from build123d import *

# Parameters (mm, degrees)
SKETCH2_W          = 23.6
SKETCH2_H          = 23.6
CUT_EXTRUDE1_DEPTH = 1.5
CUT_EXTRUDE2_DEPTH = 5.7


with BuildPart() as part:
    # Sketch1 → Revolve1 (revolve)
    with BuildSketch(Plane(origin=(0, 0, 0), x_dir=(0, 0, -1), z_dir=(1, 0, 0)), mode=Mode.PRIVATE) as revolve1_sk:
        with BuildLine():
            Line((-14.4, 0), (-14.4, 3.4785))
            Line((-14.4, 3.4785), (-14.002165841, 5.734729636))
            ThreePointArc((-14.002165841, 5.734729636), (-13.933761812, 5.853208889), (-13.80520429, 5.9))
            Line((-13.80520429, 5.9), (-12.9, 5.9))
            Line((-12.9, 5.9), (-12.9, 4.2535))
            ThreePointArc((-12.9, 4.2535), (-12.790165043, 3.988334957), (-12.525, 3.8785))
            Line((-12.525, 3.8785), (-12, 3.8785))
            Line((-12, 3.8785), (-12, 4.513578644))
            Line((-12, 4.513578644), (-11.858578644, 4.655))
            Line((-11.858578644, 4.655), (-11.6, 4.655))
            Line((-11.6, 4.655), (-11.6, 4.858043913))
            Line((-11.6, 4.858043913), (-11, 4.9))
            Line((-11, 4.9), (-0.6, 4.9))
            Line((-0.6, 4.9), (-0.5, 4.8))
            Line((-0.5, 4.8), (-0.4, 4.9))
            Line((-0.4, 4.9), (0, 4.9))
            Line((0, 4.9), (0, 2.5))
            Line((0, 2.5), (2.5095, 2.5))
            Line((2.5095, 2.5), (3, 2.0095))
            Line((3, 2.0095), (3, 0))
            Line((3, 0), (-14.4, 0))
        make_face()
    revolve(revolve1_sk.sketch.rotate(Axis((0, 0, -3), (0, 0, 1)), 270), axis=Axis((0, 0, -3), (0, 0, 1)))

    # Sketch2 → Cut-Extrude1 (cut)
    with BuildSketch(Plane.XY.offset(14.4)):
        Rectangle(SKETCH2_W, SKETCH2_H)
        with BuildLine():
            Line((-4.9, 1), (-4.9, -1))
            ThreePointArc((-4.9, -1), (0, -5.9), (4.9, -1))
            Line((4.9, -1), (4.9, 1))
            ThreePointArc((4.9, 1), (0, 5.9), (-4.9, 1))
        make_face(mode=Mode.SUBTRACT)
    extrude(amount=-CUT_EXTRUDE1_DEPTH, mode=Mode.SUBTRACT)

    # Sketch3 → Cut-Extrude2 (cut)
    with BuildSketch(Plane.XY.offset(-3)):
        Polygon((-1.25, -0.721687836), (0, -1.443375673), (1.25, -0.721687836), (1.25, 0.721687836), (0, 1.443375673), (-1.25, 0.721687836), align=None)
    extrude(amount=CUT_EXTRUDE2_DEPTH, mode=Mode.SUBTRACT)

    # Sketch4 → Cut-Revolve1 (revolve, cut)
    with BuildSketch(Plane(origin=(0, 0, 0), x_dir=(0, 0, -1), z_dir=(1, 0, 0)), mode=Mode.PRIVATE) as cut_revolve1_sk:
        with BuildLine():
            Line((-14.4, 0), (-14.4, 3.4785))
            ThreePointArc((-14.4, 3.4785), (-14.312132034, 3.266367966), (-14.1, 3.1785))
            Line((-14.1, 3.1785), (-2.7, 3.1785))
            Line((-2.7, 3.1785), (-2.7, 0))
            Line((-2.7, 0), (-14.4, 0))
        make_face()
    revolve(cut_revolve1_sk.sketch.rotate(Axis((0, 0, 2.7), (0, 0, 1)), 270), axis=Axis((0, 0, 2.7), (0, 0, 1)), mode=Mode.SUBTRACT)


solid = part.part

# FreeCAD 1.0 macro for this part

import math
import FreeCAD as App
import Part
import Sketcher

V = App.Vector
Q = App.Units.Quantity

doc = App.newDocument("Part")
body = doc.addObject("PartDesign::Body", "Body")

# Sketch on YZ plane
sketch1 = body.newObject("Sketcher::SketchObject", "Sketch")
sketch1.AttachmentSupport = (doc.getObject("YZ_Plane"), [""])
sketch1.MapMode = "FlatFace"
sketch1.addGeometry(Part.LineSegment(V(3.4785, 14.4, 0), V(0, 14.4, 0)), False)
sketch1.addGeometry(Part.LineSegment(V(0, 14.4, 0), V(0, -3, 0)), False)
sketch1.addGeometry(Part.LineSegment(V(0, -3, 0), V(2.0095, -3, 0)), False)
sketch1.addGeometry(Part.LineSegment(V(2.0095, -3, 0), V(2.5, -2.5095, 0)), False)
sketch1.addGeometry(Part.LineSegment(V(2.5, -2.5095, 0), V(2.5, 0, 0)), False)
sketch1.addGeometry(Part.LineSegment(V(2.5, 0, 0), V(4.9, 0, 0)), False)
sketch1.addGeometry(Part.LineSegment(V(4.9, 0, 0), V(4.9, 0.4, 0)), False)
sketch1.addGeometry(Part.LineSegment(V(4.9, 0.4, 0), V(4.8, 0.5, 0)), False)
sketch1.addGeometry(Part.LineSegment(V(4.8, 0.5, 0), V(4.9, 0.6, 0)), False)
sketch1.addGeometry(Part.LineSegment(V(4.9, 0.6, 0), V(4.9, 11, 0)), False)
sketch1.addGeometry(Part.LineSegment(V(4.9, 11, 0), V(4.858044, 11.6, 0)), False)
sketch1.addGeometry(Part.LineSegment(V(4.858044, 11.6, 0), V(4.655, 11.6, 0)), False)
sketch1.addGeometry(Part.LineSegment(V(4.655, 11.6, 0), V(4.655, 11.858579, 0)), False)
sketch1.addGeometry(Part.LineSegment(V(4.655, 11.858579, 0), V(4.513579, 12, 0)), False)
sketch1.addGeometry(Part.LineSegment(V(4.513579, 12, 0), V(3.8785, 12, 0)), False)
sketch1.addGeometry(Part.LineSegment(V(3.8785, 12, 0), V(3.8785, 12.525, 0)), False)
sketch1.addGeometry(Part.ArcOfCircle(Part.Circle(V(4.2535, 12.525, 0), V(0, 0, 1), 0.375), math.radians(90), math.radians(180)), False)
sketch1.addGeometry(Part.LineSegment(V(4.2535, 12.9, 0), V(5.9, 12.9, 0)), False)
sketch1.addGeometry(Part.LineSegment(V(5.9, 12.9, 0), V(5.9, 13.805204, 0)), False)
sketch1.addGeometry(Part.ArcOfCircle(Part.Circle(V(5.7, 13.805204, 0), V(0, 0, 1), 0.2), math.radians(0), math.radians(80)), False)
sketch1.addGeometry(Part.LineSegment(V(5.73473, 14.002166, 0), V(3.4785, 14.4, 0)), False)
sketch1.addConstraint(Sketcher.Constraint("Coincident", 0, 2, 1, 1))
sketch1.addConstraint(Sketcher.Constraint("Coincident", 1, 2, 2, 1))
sketch1.addConstraint(Sketcher.Constraint("Coincident", 2, 2, 3, 1))
sketch1.addConstraint(Sketcher.Constraint("Coincident", 3, 2, 4, 1))
sketch1.addConstraint(Sketcher.Constraint("Coincident", 4, 2, 5, 1))
sketch1.addConstraint(Sketcher.Constraint("Coincident", 5, 2, 6, 1))
sketch1.addConstraint(Sketcher.Constraint("Coincident", 6, 2, 7, 1))
sketch1.addConstraint(Sketcher.Constraint("Coincident", 7, 2, 8, 1))
sketch1.addConstraint(Sketcher.Constraint("Coincident", 8, 2, 9, 1))
sketch1.addConstraint(Sketcher.Constraint("Coincident", 9, 2, 10, 1))
sketch1.addConstraint(Sketcher.Constraint("Coincident", 10, 2, 11, 1))
sketch1.addConstraint(Sketcher.Constraint("Coincident", 11, 2, 12, 1))
sketch1.addConstraint(Sketcher.Constraint("Coincident", 12, 2, 13, 1))
sketch1.addConstraint(Sketcher.Constraint("Coincident", 13, 2, 14, 1))
sketch1.addConstraint(Sketcher.Constraint("Coincident", 14, 2, 15, 1))
sketch1.addConstraint(Sketcher.Constraint("Tangent", 15, 2, 16, 2))
sketch1.addConstraint(Sketcher.Constraint("Tangent", 16, 1, 17, 1))
sketch1.addConstraint(Sketcher.Constraint("Coincident", 17, 2, 18, 1))
sketch1.addConstraint(Sketcher.Constraint("Tangent", 18, 2, 19, 1))
sketch1.addConstraint(Sketcher.Constraint("Tangent", 19, 2, 20, 1))
sketch1.addConstraint(Sketcher.Constraint("Coincident", 20, 2, 0, 1))
sketch1.addConstraint(Sketcher.Constraint("Horizontal", 0))
sketch1.addConstraint(Sketcher.Constraint("Vertical", 1))
sketch1.addConstraint(Sketcher.Constraint("Horizontal", 2))
sketch1.addConstraint(Sketcher.Constraint("Vertical", 4))
sketch1.addConstraint(Sketcher.Constraint("Horizontal", 5))
sketch1.addConstraint(Sketcher.Constraint("Vertical", 6))
sketch1.addConstraint(Sketcher.Constraint("Vertical", 9))
sketch1.addConstraint(Sketcher.Constraint("Horizontal", 11))
sketch1.addConstraint(Sketcher.Constraint("Vertical", 12))
sketch1.addConstraint(Sketcher.Constraint("Horizontal", 14))
sketch1.addConstraint(Sketcher.Constraint("Vertical", 15))
sketch1.addConstraint(Sketcher.Constraint("Horizontal", 17))
sketch1.addConstraint(Sketcher.Constraint("Vertical", 18))
sketch1.addConstraint(Sketcher.Constraint("PointOnObject", 0, 2, -2))
sketch1.addConstraint(Sketcher.Constraint("PointOnObject", 4, 2, -1))
sketch1.addConstraint(Sketcher.Constraint("Perpendicular", 3, 7))
sketch1.addConstraint(Sketcher.Constraint("Perpendicular", 7, 8))
sketch1.addConstraint(Sketcher.Constraint("Perpendicular", 8, 13))
sketch1.addConstraint(Sketcher.Constraint("Vertical", 6, 2, 8, 2))
sketch1.addConstraint(Sketcher.Constraint("Equal", 7, 8))
sketch1.addConstraint(Sketcher.Constraint("Radius", 19, 0.2))
sketch1.addConstraint(Sketcher.Constraint("Angle", 10, Q("94 deg")))
sketch1.addConstraint(Sketcher.Constraint("Angle", 20, Q("170 deg")))
sketch1.addConstraint(Sketcher.Constraint("DistanceX", 5, 1, 5, 2, 2.4))
sketch1.addConstraint(Sketcher.Constraint("DistanceY", 1, 2, 1, 1, 17.4))
sketch1.addConstraint(Sketcher.Constraint("DistanceY", 6, 1, 6, 2, 0.4))
sketch1.addConstraint(Sketcher.Constraint("DistanceY", 9, 1, 9, 2, 10.4))
sketch1.addConstraint(Sketcher.Constraint("DistanceY", 1, 2, -1, 1, 3.0))
sketch1.addConstraint(Sketcher.Constraint("DistanceY", -1, 1, 9, 2, 11.0))
sketch1.addConstraint(Sketcher.Constraint("DistanceY", -1, 1, 13, 2, 12.0))
sketch1.addConstraint(Sketcher.Constraint("Radius", 16, 0.375))
sketch1.addConstraint(Sketcher.Constraint("DistanceY", 8, 2, 10, 2, 11.0))
sketch1.addConstraint(Sketcher.Constraint("Distance", 13, 0.2))
sketch1.addConstraint(Sketcher.Constraint("DistanceX", -1, 1, 19, 3, 5.7))
sketch1.addConstraint(Sketcher.Constraint("DistanceX", -1, 1, 3, 2, 2.5))
sketch1.addConstraint(Sketcher.Constraint("DistanceY", -1, 1, 16, 1, 12.9))
sketch1.addConstraint(Sketcher.Constraint("DistanceX", 20, 2, 15, 2, 0.4))
sketch1.addConstraint(Sketcher.Constraint("DistanceX", 0, 2, 0, 1, 3.4785))
sketch1.addConstraint(Sketcher.Constraint("DistanceX", 2, 1, 2, 2, 2.0095))
sketch1.addConstraint(Sketcher.Constraint("DistanceX", -1, 1, 11, 2, 4.655))
revolution = body.newObject("PartDesign::Revolution", "Revolution")
revolution.Profile = sketch1
revolution.ReferenceAxis = (sketch1, ["V_Axis"])
revolution.Angle = 360

# Sketch on XY plane
sketch2 = body.newObject("Sketcher::SketchObject", "Sketch001")
sketch2.AttachmentSupport = (doc.getObject("XY_Plane"), [""])
sketch2.MapMode = "FlatFace"
sketch2.AttachmentOffset = App.Placement(V(0, 0, 14.4), App.Rotation())
sketch2.addGeometry(Part.LineSegment(V(-11.8, 11.8, 0), V(-11.8, -11.8, 0)), False)
sketch2.addGeometry(Part.LineSegment(V(-11.8, -11.8, 0), V(11.8, -11.8, 0)), False)
sketch2.addGeometry(Part.LineSegment(V(11.8, -11.8, 0), V(11.8, 11.8, 0)), False)
sketch2.addGeometry(Part.LineSegment(V(11.8, 11.8, 0), V(-11.8, 11.8, 0)), False)
sketch2.addGeometry(Part.LineSegment(V(-4.9, -1, 0), V(-4.9, 1, 0)), False)
sketch2.addGeometry(Part.ArcOfCircle(Part.Circle(V(0, 1, 0), V(0, 0, 1), 4.9), math.radians(0), math.radians(180)), False)
sketch2.addGeometry(Part.LineSegment(V(4.9, 1, 0), V(4.9, -1, 0)), False)
sketch2.addGeometry(Part.ArcOfCircle(Part.Circle(V(0, -1, 0), V(0, 0, 1), 4.9), math.radians(180), math.radians(360)), False)
sketch2.addConstraint(Sketcher.Constraint("Coincident", 0, 2, 1, 1))
sketch2.addConstraint(Sketcher.Constraint("Coincident", 1, 2, 2, 1))
sketch2.addConstraint(Sketcher.Constraint("Coincident", 2, 2, 3, 1))
sketch2.addConstraint(Sketcher.Constraint("Coincident", 3, 2, 0, 1))
sketch2.addConstraint(Sketcher.Constraint("Tangent", 4, 2, 5, 2))
sketch2.addConstraint(Sketcher.Constraint("Tangent", 5, 1, 6, 1))
sketch2.addConstraint(Sketcher.Constraint("Tangent", 6, 2, 7, 2))
sketch2.addConstraint(Sketcher.Constraint("Tangent", 7, 1, 4, 1))
sketch2.addConstraint(Sketcher.Constraint("Vertical", 0))
sketch2.addConstraint(Sketcher.Constraint("Horizontal", 1))
sketch2.addConstraint(Sketcher.Constraint("Vertical", 2))
sketch2.addConstraint(Sketcher.Constraint("Horizontal", 3))
sketch2.addConstraint(Sketcher.Constraint("Vertical", 4))
sketch2.addConstraint(Sketcher.Constraint("Vertical", 6))
sketch2.addConstraint(Sketcher.Constraint("Symmetric", 5, 3, 7, 3, -1, 1))
sketch2.addConstraint(Sketcher.Constraint("Symmetric", 0, 2, 2, 2, -1, 1))
sketch2.addConstraint(Sketcher.Constraint("Equal", 3, 0))
sketch2.addConstraint(Sketcher.Constraint("Radius", 5, 4.9))
sketch2.addConstraint(Sketcher.Constraint("DistanceY", 4, 1, 4, 2, 2.0))
sketch2.addConstraint(Sketcher.Constraint("DistanceX", 1, 1, 1, 2, 23.6))
pocket1 = body.newObject("PartDesign::Pocket", "Pocket")
pocket1.Profile = sketch2
pocket1.Length = 1.5

# Sketch on XY plane
sketch3 = body.newObject("Sketcher::SketchObject", "Sketch002")
sketch3.AttachmentSupport = (doc.getObject("XY_Plane"), [""])
sketch3.MapMode = "FlatFace"
sketch3.AttachmentOffset = App.Placement(V(0, 0, -3), App.Rotation())
sketch3.addGeometry(Part.LineSegment(V(-1.25, -0.721688, 0), V(0, -1.443376, 0)), False)
sketch3.addGeometry(Part.LineSegment(V(0, -1.443376, 0), V(1.25, -0.721688, 0)), False)
sketch3.addGeometry(Part.LineSegment(V(1.25, -0.721688, 0), V(1.25, 0.721688, 0)), False)
sketch3.addGeometry(Part.LineSegment(V(1.25, 0.721688, 0), V(0, 1.443376, 0)), False)
sketch3.addGeometry(Part.LineSegment(V(0, 1.443376, 0), V(-1.25, 0.721688, 0)), False)
sketch3.addGeometry(Part.LineSegment(V(-1.25, 0.721688, 0), V(-1.25, -0.721688, 0)), False)
sketch3.addConstraint(Sketcher.Constraint("Coincident", 0, 2, 1, 1))
sketch3.addConstraint(Sketcher.Constraint("Coincident", 1, 2, 2, 1))
sketch3.addConstraint(Sketcher.Constraint("Coincident", 2, 2, 3, 1))
sketch3.addConstraint(Sketcher.Constraint("Coincident", 3, 2, 4, 1))
sketch3.addConstraint(Sketcher.Constraint("Coincident", 4, 2, 5, 1))
sketch3.addConstraint(Sketcher.Constraint("Coincident", 5, 2, 0, 1))
sketch3.addConstraint(Sketcher.Constraint("Vertical", 2))
sketch3.addConstraint(Sketcher.Constraint("Vertical", 5))
sketch3.addConstraint(Sketcher.Constraint("Symmetric", 0, 2, 3, 2, -1, 1))
sketch3.addConstraint(Sketcher.Constraint("Symmetric", 1, 2, 4, 2, -1, 1))
sketch3.addConstraint(Sketcher.Constraint("PointOnObject", 0, 2, -2))
sketch3.addConstraint(Sketcher.Constraint("Parallel", 0, 3))
sketch3.addConstraint(Sketcher.Constraint("Horizontal", 2, 2, 4, 2))
sketch3.addConstraint(Sketcher.Constraint("Angle", 0, Q("-30 deg")))
sketch3.addConstraint(Sketcher.Constraint("DistanceX", 4, 2, 2, 2, 2.5))
sketch3.addConstraint(Sketcher.Constraint("DistanceY", 2, 1, 2, 2, 1.443376))
pocket2 = body.newObject("PartDesign::Pocket", "Pocket001")
pocket2.Profile = sketch3
pocket2.Length = 5.7
pocket2.Reversed = True

# Sketch on YZ plane
sketch4 = body.newObject("Sketcher::SketchObject", "Sketch003")
sketch4.AttachmentSupport = (doc.getObject("YZ_Plane"), [""])
sketch4.MapMode = "FlatFace"
sketch4.addGeometry(Part.LineSegment(V(3.4785, 14.4, 0), V(0, 14.4, 0)), False)
sketch4.addGeometry(Part.LineSegment(V(0, 14.4, 0), V(0, 2.7, 0)), False)
sketch4.addGeometry(Part.LineSegment(V(0, 2.7, 0), V(3.1785, 2.7, 0)), False)
sketch4.addGeometry(Part.LineSegment(V(3.1785, 2.7, 0), V(3.1785, 14.1, 0)), False)
sketch4.addGeometry(Part.ArcOfCircle(Part.Circle(V(3.4785, 14.1, 0), V(0, 0, 1), 0.3), math.radians(90), math.radians(180)), False)
sketch4.addConstraint(Sketcher.Constraint("Coincident", 0, 2, 1, 1))
sketch4.addConstraint(Sketcher.Constraint("Coincident", 1, 2, 2, 1))
sketch4.addConstraint(Sketcher.Constraint("Coincident", 2, 2, 3, 1))
sketch4.addConstraint(Sketcher.Constraint("Tangent", 3, 2, 4, 2))
sketch4.addConstraint(Sketcher.Constraint("Tangent", 4, 1, 0, 1))
sketch4.addConstraint(Sketcher.Constraint("Horizontal", 0))
sketch4.addConstraint(Sketcher.Constraint("Vertical", 1))
sketch4.addConstraint(Sketcher.Constraint("Horizontal", 2))
sketch4.addConstraint(Sketcher.Constraint("Vertical", 3))
sketch4.addConstraint(Sketcher.Constraint("PointOnObject", 0, 2, -2))
sketch4.addConstraint(Sketcher.Constraint("Radius", 4, 0.3))
sketch4.addConstraint(Sketcher.Constraint("DistanceY", 1, 2, 1, 1, 11.7))
sketch4.addConstraint(Sketcher.Constraint("DistanceY", -1, 1, 4, 3, 14.1))
sketch4.addConstraint(Sketcher.Constraint("DistanceX", 0, 2, 0, 1, 3.4785))
groove = body.newObject("PartDesign::Groove", "Groove")
groove.Profile = sketch4
groove.ReferenceAxis = (sketch4, ["V_Axis"])
groove.Angle = 360

doc.recompute()
